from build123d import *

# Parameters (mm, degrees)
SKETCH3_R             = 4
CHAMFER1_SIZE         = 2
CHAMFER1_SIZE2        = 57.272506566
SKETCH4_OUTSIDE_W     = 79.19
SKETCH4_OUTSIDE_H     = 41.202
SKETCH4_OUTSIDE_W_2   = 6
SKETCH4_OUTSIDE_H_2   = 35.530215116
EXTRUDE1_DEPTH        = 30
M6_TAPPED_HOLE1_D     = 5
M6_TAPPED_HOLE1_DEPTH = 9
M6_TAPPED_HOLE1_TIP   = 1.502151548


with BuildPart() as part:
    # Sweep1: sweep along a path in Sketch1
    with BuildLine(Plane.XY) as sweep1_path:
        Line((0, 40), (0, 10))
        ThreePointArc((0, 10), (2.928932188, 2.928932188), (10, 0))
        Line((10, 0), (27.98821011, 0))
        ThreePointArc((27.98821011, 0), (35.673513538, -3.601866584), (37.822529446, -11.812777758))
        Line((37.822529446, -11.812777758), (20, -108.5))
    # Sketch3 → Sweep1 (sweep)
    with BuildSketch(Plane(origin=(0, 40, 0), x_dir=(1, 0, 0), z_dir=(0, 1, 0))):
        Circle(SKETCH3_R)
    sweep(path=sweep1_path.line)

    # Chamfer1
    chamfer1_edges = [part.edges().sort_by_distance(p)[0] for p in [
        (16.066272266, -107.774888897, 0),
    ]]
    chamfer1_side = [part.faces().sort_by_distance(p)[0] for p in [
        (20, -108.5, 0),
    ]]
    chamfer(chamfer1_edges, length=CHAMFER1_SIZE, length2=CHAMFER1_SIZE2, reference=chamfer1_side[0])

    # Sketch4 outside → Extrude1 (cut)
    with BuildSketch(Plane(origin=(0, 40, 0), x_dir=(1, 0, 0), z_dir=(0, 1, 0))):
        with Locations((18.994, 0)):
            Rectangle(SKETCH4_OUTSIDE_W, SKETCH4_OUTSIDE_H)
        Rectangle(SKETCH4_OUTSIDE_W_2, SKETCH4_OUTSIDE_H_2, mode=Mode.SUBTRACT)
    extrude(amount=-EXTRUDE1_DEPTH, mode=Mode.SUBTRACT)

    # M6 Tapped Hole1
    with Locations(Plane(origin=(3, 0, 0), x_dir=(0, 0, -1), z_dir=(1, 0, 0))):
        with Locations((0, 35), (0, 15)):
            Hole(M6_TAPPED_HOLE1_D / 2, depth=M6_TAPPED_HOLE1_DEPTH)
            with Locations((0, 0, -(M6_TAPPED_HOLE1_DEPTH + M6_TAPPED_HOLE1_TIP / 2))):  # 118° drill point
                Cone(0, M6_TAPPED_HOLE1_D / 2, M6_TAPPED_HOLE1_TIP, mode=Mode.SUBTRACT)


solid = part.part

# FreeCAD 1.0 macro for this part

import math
import FreeCAD as App
import Part
import Sketcher

V = App.Vector


def edges_at(feature, points):
    """Names of the edges that pass closest to the given points."""
    edges = feature.Shape.Edges
    near = lambda p: min(range(len(edges)), key=lambda i: edges[i].distToShape(Part.Vertex(*p))[0])
    return sorted({f"Edge{near(p) + 1}" for p in points})

doc = App.newDocument("Part")
body = doc.addObject("PartDesign::Body", "Body")

sketch1 = body.newObject("Sketcher::SketchObject", "Sketch")
sketch1.AttachmentSupport = (doc.getObject("XZ_Plane"), [""])
sketch1.MapMode = "FlatFace"
sketch1.AttachmentOffset = App.Placement(V(0, 0, -40), App.Rotation())
sketch1.addGeometry(Part.Circle(V(0, 0, 0), V(0, 0, 1), 4), False)
sketch1.addConstraint([
    Sketcher.Constraint("Coincident", 0, 3, -1, 1),
    Sketcher.Constraint("Diameter", 0, 8.0),
])

sketch2 = body.newObject("Sketcher::SketchObject", "Sketch001")
sketch2.AttachmentSupport = (doc.getObject("XY_Plane"), [""])
sketch2.MapMode = "FlatFace"
sketch2.addGeometry([
    Part.LineSegment(V(0, 40, 0), V(0, 10, 0)),
    Part.ArcOfCircle(Part.Circle(V(10, 10, 0), V(0, 0, 1), 10), math.radians(180), math.radians(270)),
    Part.LineSegment(V(10, 0, 0), V(28, 0, 0)),
    Part.ArcOfCircle(Part.Circle(V(28, -10, 0), V(0, 0, 1), 10), math.radians(-10), math.radians(90)),
    Part.LineSegment(V(38, -12, 0), V(20, -108, 0)),
], False)
sketch2.addConstraint([
    Sketcher.Constraint("Tangent", 0, 2, 1, 1),
    Sketcher.Constraint("Tangent", 1, 2, 2, 1),
    Sketcher.Constraint("Tangent", 2, 2, 3, 2),
    Sketcher.Constraint("Tangent", 3, 1, 4, 1),
    Sketcher.Constraint("Vertical", 0),
    Sketcher.Constraint("Horizontal", 2),
    Sketcher.Constraint("Equal", 1, 3),
    Sketcher.Constraint("PointOnObject", 0, 1, -2),
    Sketcher.Constraint("PointOnObject", 1, 2, -1),
    Sketcher.Constraint("Radius", 1, 10.0),
    Sketcher.Constraint("DistanceY", 0, 2, 0, 1, 30.0),
    Sketcher.Constraint("DistanceX", -1, 1, 4, 2, 20.0),
    Sketcher.Constraint("DistanceY", 4, 2, -1, 1, 108.5),
    Sketcher.Constraint("DistanceX", 2, 1, 2, 2, 17.98821),
])
doc.recompute()

additivepipe = body.newObject("PartDesign::AdditivePipe", "AdditivePipe")
additivepipe.Profile = sketch1
additivepipe.Spine = (sketch2, ["Edge1", "Edge2", "Edge3", "Edge4", "Edge5"])
doc.recompute()

chamfer = body.newObject("PartDesign::Chamfer", "Chamfer")
chamfer.Base = (additivepipe, edges_at(additivepipe, [(16.066, -107.775, 0)]))
chamfer.ChamferType = "Two distances"
chamfer.Size = 2
chamfer.Size2 = 57.272507
chamfer.FlipDirection = True

sketch3 = body.newObject("Sketcher::SketchObject", "Sketch002")
sketch3.AttachmentSupport = (doc.getObject("XZ_Plane"), [""])
sketch3.MapMode = "FlatFace"
sketch3.AttachmentOffset = App.Placement(V(0, 0, -40), App.Rotation())
sketch3.addGeometry([
    Part.LineSegment(V(-21, -21, 0), V(-21, 21, 0)),
    Part.LineSegment(V(-21, 21, 0), V(59, 21, 0)),
    Part.LineSegment(V(59, 21, 0), V(59, -21, 0)),
    Part.LineSegment(V(59, -21, 0), V(-21, -21, 0)),
    Part.LineSegment(V(3, 18, 0), V(-3, 18, 0)),
    Part.LineSegment(V(-3, 18, 0), V(-3, -18, 0)),
    Part.LineSegment(V(-3, -18, 0), V(3, -18, 0)),
    Part.LineSegment(V(3, -18, 0), V(3, 18, 0)),
], False)
sketch3.addConstraint([
    Sketcher.Constraint("Coincident", 0, 2, 1, 1),
    Sketcher.Constraint("Coincident", 1, 2, 2, 1),
    Sketcher.Constraint("Coincident", 2, 2, 3, 1),
    Sketcher.Constraint("Coincident", 3, 2, 0, 1),
    Sketcher.Constraint("Coincident", 4, 2, 5, 1),
    Sketcher.Constraint("Coincident", 5, 2, 6, 1),
    Sketcher.Constraint("Coincident", 6, 2, 7, 1),
    Sketcher.Constraint("Coincident", 7, 2, 4, 1),
    Sketcher.Constraint("Vertical", 0),
    Sketcher.Constraint("Horizontal", 1),
    Sketcher.Constraint("Vertical", 2),
    Sketcher.Constraint("Horizontal", 3),
    Sketcher.Constraint("Horizontal", 4),
    Sketcher.Constraint("Vertical", 5),
    Sketcher.Constraint("Horizontal", 6),
    Sketcher.Constraint("Vertical", 7),
    Sketcher.Constraint("Symmetric", 4, 2, 6, 2, -1, 1),
    Sketcher.Constraint("DistanceX", 4, 2, 4, 1, 6.0),
    Sketcher.Constraint("DistanceX", 1, 1, 1, 2, 79.19),
    Sketcher.Constraint("DistanceY", 0, 1, 0, 2, 41.202),
    Sketcher.Constraint("DistanceX", 0, 2, -1, 1, 20.601),
    Sketcher.Constraint("DistanceY", -1, 1, 0, 2, 20.601),
    Sketcher.Constraint("DistanceY", 5, 2, 5, 1, 35.530215),
])
pocket1 = body.newObject("PartDesign::Pocket", "Pocket")
pocket1.Profile = sketch3
pocket1.Length = 30
pocket1.Reversed = True

sketch4 = body.newObject("Sketcher::SketchObject", "Sketch003")
sketch4.AttachmentSupport = (doc.getObject("YZ_Plane"), [""])
sketch4.MapMode = "FlatFace"
sketch4.AttachmentOffset = App.Placement(V(0, 0, 3), App.Rotation())
sketch4.addGeometry([
    Part.Circle(V(35, 0, 0), V(0, 0, 1), 2.5),
    Part.Circle(V(15, 0, 0), V(0, 0, 1), 2.5),
], False)
sketch4.addConstraint([
    Sketcher.Constraint("Equal", 0, 1),
    Sketcher.Constraint("PointOnObject", 0, 3, -1),
    Sketcher.Constraint("PointOnObject", 1, 3, -1),
    Sketcher.Constraint("Diameter", 0, 5.0),
    Sketcher.Constraint("DistanceX", -1, 1, 0, 3, 35.0),
    Sketcher.Constraint("DistanceX", -1, 1, 1, 3, 15.0),
])
doc.recompute()
hole = body.newObject("PartDesign::Hole", "Hole")
hole.Profile = sketch4
hole.ThreadType = "None"
hole.Diameter = 5
hole.DepthType = "Dimension"
hole.Depth = 9
hole.DrillPoint = "Angled"
hole.DrillPointAngle = 118

doc.recompute()
